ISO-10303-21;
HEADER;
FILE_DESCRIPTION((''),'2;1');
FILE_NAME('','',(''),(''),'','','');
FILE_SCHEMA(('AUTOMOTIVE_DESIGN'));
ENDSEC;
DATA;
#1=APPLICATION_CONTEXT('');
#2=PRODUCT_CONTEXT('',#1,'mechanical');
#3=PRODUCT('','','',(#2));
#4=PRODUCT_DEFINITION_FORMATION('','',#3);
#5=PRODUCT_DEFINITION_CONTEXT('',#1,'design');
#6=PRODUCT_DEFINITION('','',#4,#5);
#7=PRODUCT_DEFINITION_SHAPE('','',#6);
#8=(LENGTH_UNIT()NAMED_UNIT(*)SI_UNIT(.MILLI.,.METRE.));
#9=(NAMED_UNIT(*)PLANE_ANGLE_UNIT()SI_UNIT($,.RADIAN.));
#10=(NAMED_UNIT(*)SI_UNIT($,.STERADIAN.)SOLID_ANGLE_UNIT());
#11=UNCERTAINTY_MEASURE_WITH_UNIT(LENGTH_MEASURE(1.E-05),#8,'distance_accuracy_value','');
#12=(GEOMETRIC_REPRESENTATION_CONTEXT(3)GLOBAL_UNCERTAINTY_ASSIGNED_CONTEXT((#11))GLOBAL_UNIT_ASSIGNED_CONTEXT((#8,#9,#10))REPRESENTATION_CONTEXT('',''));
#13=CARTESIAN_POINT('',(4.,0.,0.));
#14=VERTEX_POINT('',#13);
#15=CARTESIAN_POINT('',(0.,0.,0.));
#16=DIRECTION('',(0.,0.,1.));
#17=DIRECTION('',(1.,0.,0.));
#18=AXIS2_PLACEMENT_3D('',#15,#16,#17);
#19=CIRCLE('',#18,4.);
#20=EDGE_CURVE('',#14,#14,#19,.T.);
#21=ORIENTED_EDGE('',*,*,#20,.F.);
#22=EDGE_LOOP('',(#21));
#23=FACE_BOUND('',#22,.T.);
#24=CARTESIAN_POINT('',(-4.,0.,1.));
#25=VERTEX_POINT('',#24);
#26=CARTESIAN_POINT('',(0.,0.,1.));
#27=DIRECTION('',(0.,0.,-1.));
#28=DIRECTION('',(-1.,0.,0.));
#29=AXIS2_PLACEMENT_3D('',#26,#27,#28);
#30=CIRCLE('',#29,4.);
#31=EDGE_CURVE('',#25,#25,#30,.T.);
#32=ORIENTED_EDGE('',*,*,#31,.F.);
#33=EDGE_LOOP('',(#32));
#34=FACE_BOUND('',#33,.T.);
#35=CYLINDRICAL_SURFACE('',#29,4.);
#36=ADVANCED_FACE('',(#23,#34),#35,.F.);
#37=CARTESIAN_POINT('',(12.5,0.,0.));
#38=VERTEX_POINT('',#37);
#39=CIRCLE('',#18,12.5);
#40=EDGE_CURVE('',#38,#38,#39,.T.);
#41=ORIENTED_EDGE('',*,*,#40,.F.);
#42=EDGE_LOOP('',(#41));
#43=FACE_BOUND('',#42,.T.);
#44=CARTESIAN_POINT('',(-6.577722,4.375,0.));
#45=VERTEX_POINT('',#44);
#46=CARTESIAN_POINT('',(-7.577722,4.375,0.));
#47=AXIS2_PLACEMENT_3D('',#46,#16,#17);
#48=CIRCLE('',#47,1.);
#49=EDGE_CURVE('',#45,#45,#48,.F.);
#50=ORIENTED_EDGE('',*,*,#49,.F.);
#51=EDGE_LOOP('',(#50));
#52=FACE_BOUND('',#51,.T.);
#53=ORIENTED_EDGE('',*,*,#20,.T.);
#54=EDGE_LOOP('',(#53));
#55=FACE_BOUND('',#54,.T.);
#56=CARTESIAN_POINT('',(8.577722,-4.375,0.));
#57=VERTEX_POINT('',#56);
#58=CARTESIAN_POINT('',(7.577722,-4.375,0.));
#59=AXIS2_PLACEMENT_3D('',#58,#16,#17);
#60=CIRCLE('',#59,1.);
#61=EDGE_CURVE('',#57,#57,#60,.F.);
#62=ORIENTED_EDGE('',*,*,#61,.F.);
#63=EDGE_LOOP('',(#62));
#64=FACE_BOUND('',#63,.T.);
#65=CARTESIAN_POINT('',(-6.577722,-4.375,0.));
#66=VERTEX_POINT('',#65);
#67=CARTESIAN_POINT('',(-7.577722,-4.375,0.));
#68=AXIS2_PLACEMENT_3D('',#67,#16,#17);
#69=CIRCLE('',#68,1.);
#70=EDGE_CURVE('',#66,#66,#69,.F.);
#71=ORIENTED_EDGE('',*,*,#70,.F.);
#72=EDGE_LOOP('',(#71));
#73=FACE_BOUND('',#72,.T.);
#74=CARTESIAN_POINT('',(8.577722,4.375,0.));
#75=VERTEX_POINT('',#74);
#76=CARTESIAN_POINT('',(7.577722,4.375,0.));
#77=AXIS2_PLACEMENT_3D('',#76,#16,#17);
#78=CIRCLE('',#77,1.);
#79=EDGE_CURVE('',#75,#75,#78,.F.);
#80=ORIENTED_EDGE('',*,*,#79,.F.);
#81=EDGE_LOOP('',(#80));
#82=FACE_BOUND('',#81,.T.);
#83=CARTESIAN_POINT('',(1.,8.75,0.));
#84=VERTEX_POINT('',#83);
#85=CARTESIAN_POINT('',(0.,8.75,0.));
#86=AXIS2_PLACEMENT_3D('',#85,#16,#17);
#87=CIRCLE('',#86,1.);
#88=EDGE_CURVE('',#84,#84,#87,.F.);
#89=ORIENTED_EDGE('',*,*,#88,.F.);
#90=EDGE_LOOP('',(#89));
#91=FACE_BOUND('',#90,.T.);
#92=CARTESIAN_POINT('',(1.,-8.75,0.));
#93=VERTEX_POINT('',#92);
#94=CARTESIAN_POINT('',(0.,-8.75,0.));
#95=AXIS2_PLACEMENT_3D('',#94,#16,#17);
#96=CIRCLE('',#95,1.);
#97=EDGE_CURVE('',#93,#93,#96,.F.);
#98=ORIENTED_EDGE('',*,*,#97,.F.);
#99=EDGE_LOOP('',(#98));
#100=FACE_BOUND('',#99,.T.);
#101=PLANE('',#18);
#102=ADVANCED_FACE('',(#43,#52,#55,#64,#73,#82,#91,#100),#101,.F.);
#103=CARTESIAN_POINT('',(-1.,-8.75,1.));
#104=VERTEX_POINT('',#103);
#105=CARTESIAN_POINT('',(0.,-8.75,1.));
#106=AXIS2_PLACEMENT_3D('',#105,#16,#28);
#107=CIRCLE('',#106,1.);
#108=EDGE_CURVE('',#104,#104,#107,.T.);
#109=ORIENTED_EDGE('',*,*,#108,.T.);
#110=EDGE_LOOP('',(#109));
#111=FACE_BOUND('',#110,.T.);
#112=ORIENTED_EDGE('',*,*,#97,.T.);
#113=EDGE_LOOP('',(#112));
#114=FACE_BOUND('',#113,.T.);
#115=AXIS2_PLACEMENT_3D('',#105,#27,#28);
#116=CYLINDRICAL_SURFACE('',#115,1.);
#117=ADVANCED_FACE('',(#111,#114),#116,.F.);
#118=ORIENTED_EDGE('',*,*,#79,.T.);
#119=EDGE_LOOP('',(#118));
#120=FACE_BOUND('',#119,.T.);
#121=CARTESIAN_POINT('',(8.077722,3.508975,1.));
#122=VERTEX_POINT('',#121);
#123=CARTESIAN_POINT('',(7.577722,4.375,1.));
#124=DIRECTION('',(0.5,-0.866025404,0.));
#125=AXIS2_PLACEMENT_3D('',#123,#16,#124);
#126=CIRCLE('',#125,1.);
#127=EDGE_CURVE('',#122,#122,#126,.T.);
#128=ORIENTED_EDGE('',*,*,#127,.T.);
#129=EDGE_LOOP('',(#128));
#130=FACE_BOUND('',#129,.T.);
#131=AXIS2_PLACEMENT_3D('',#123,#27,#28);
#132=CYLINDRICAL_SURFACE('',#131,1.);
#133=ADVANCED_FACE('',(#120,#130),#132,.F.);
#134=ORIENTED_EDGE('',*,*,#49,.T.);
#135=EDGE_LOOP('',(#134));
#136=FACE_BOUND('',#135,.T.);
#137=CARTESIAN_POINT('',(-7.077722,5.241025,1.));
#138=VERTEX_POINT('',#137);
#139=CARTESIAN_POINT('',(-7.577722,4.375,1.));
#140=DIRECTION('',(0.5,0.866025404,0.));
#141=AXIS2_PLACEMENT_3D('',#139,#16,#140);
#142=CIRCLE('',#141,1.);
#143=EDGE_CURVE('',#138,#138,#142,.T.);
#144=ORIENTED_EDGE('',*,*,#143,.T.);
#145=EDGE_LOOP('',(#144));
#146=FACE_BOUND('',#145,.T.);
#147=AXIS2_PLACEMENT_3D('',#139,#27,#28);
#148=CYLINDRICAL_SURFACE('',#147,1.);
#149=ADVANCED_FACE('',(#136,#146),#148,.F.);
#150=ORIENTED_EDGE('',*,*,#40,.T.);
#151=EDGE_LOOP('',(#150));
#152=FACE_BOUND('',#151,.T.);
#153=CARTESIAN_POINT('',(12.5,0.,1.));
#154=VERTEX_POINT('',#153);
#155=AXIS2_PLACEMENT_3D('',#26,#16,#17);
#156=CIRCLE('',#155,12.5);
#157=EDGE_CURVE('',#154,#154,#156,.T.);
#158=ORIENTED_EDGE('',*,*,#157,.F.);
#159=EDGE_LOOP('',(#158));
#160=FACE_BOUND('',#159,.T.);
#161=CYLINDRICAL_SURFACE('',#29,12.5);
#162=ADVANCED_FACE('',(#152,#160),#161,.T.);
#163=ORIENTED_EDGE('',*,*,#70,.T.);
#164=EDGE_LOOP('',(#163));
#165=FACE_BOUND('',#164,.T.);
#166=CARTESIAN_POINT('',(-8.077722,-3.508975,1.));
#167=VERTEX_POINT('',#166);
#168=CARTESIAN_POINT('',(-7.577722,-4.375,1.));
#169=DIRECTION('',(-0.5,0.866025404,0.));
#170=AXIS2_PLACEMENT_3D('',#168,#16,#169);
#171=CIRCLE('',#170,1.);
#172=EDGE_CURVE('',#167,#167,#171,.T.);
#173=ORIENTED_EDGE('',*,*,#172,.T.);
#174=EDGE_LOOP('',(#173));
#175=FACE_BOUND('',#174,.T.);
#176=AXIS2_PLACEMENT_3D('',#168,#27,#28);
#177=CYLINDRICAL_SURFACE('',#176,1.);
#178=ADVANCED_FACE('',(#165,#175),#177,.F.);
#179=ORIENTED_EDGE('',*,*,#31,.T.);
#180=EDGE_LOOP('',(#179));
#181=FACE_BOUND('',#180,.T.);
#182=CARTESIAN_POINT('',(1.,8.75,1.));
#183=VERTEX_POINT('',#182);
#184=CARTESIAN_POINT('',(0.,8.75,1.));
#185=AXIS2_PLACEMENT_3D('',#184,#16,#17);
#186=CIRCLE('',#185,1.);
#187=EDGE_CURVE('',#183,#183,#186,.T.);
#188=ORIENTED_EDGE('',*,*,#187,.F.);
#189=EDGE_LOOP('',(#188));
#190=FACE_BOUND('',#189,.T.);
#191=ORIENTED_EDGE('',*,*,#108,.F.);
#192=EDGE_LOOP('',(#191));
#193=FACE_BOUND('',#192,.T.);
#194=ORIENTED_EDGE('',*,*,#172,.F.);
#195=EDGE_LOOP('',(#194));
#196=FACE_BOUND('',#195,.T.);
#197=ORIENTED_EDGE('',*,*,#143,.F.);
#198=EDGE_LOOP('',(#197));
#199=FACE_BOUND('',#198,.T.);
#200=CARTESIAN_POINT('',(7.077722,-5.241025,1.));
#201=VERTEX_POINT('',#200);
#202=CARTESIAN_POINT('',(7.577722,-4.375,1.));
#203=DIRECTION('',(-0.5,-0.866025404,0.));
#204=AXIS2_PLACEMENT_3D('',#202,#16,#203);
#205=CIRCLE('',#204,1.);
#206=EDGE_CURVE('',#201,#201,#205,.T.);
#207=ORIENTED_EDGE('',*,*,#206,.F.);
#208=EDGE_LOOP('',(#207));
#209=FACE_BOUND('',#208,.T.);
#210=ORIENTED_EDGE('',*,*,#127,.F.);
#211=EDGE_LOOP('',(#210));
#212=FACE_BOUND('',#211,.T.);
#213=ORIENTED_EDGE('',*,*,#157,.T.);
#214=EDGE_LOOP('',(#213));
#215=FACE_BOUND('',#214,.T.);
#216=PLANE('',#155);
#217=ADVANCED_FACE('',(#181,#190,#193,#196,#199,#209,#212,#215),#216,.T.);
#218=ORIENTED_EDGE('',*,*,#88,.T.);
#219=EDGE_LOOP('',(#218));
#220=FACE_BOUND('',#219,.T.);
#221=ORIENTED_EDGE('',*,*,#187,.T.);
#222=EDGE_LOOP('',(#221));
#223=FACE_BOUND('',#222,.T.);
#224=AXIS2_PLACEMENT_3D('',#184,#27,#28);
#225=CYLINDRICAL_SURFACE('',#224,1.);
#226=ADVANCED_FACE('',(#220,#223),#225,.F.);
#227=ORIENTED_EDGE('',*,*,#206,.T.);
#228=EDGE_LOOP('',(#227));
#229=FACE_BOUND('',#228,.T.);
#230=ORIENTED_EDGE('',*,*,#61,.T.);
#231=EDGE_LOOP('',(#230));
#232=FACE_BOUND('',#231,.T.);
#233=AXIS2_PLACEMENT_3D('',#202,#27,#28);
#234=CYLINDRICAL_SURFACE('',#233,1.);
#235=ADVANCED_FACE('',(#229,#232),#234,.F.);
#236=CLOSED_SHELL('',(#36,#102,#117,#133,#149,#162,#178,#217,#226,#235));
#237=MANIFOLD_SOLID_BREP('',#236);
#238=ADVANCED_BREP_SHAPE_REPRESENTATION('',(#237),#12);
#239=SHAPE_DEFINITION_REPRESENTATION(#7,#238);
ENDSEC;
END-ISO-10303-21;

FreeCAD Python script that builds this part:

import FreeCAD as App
import Part
import Sketcher
Q = App.Units.Quantity

doc = App.newDocument("Part")
params = doc.addObject("Spreadsheet::Sheet", "Params")
for row, (alias, value) in enumerate([
    ("sketch1_diameter", "25 mm"),
    ("pad1_length", "1 mm"),
    ("sketch2_diameter", "2 mm"),
    ("pocket1_length", "20.705931 mm"),
    ("sketch3_diameter", "8 mm"),
], start=1):
    params.set(f"A{row}", alias)
    params.set(f"B{row}", "=" + value)
    params.setAlias(f"B{row}", alias)

body = doc.addObject("PartDesign::Body", "Body")

sketch1 = body.newObject("Sketcher::SketchObject", "Sketch")
sketch1.AttachmentSupport = (doc.getObject("XY_Plane"), [""])
sketch1.MapMode = "FlatFace"
sketch1.addGeometry(Part.Circle(App.Vector(0, 0, 0), App.Vector(0, 0, 1), 12), False)
sketch1.addConstraint([
    Sketcher.Constraint("Coincident", 0, 3, -1, 1),
    Sketcher.Constraint("Diameter", 0, Q("25 mm")),
])
sketch1.setExpression("Constraints[1]", "Params.sketch1_diameter")
pad1 = body.newObject("PartDesign::Pad", "Pad")
pad1.Profile = sketch1
pad1.setExpression("Length", "Params.pad1_length")

sketch2 = body.newObject("Sketcher::SketchObject", "Sketch001")
sketch2.AttachmentSupport = (doc.getObject("XY_Plane"), [""])
sketch2.MapMode = "FlatFace"
sketch2.AttachmentOffset = App.Placement(App.Vector(0, 0, -2), App.Rotation())
sketch2.addGeometry(Part.Circle(App.Vector(0, 8.8, 0), App.Vector(0, 0, 1), 1), False)
sketch2.addConstraint([
    Sketcher.Constraint("PointOnObject", 0, 3, -2),
    Sketcher.Constraint("Diameter", 0, Q("2 mm")),
    Sketcher.Constraint("DistanceY", -1, 1, 0, 3, Q("8.75 mm")),
])
sketch2.setExpression("Constraints[1]", "Params.sketch2_diameter")
pocket1 = body.newObject("PartDesign::Pocket", "Pocket")
pocket1.Profile = sketch2
pocket1.setExpression("Length", "Params.pocket1_length")
pocket1.Reversed = True
doc.recompute()

polarpattern = body.newObject("PartDesign::PolarPattern", "PolarPattern")
polarpattern.Originals = [pocket1]
polarpattern.Axis = (doc.getObject("Z_Axis"), [""])
polarpattern.Angle = 360
polarpattern.Occurrences = 6
body.Tip = polarpattern

sketch3 = body.newObject("Sketcher::SketchObject", "Sketch002")
sketch3.AttachmentSupport = (doc.getObject("XY_Plane"), [""])
sketch3.MapMode = "FlatFace"
sketch3.addGeometry(Part.Circle(App.Vector(0, 0, 0), App.Vector(0, 0, 1), 4), False)
sketch3.addConstraint([
    Sketcher.Constraint("Coincident", 0, 3, -1, 1),
    Sketcher.Constraint("Diameter", 0, Q("8 mm")),
])
sketch3.setExpression("Constraints[1]", "Params.sketch3_diameter")
pocket2 = body.newObject("PartDesign::Pocket", "Pocket001")
pocket2.Profile = sketch3
pocket2.Type = "ThroughAll"
pocket2.Midplane = True

doc.recompute()
